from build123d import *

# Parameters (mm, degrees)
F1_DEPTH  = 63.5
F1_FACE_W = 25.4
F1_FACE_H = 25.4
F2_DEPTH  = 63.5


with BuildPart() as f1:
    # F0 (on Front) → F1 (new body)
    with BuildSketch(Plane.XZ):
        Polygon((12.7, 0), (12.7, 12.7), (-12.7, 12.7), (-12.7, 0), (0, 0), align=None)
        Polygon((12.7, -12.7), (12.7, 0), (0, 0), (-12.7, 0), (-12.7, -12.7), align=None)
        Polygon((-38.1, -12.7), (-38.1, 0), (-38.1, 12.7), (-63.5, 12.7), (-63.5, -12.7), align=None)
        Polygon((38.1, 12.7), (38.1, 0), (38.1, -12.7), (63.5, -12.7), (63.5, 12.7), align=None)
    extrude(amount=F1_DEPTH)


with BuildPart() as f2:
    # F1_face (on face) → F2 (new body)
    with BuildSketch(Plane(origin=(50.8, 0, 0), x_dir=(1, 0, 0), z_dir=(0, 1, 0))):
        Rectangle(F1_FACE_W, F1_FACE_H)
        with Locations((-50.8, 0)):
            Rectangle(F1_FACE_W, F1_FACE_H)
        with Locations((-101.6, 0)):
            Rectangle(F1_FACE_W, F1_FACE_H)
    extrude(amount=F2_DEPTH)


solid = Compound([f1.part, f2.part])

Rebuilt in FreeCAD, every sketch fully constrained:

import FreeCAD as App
import Part
import Sketcher
Q = App.Units.Quantity


def add_polygon(sketch, points):
    """Adds a closed chain of lines whose ends are joined by coincident constraints."""
    first, n = sketch.GeometryCount, len(points)
    for a, b in zip(points, points[1:] + points[:1]):
        sketch.addGeometry(Part.LineSegment(App.Vector(*a, 0), App.Vector(*b, 0)), False)
    for i in range(n):
        sketch.addConstraint(Sketcher.Constraint("Coincident", first + i, 2, first + (i + 1) % n, 1))

doc = App.newDocument("Part")
body = doc.addObject("PartDesign::Body", "Body")
body.AllowCompound = True

# Sketch on XZ plane
sketch1 = doc.addObject("Sketcher::SketchObject", "Sketch")
body.addObject(sketch1)
sketch1.AttachmentSupport = (doc.XZ_Plane, [""])
sketch1.MapMode = "FlatFace"
add_polygon(sketch1, [(13, 13), (-13, 13), (-13, -13), (13, -13)])  # lines 0-3
add_polygon(sketch1, [(-38, -13), (-38, 13), (-64, 13), (-64, -13)])  # lines 4-7
add_polygon(sketch1, [(38, 13), (38, -13), (64, -13), (64, 13)])  # lines 8-11
sketch1.addConstraint([
    Sketcher.Constraint("Horizontal", 0),
    Sketcher.Constraint("Vertical", 1),
    Sketcher.Constraint("Horizontal", 2),
    Sketcher.Constraint("Vertical", 3),
    Sketcher.Constraint("Vertical", 4),
    Sketcher.Constraint("Horizontal", 5),
    Sketcher.Constraint("Vertical", 6),
    Sketcher.Constraint("Horizontal", 7),
    Sketcher.Constraint("Vertical", 8),
    Sketcher.Constraint("Horizontal", 9),
    Sketcher.Constraint("Vertical", 10),
    Sketcher.Constraint("Horizontal", 11),
    Sketcher.Constraint("Symmetric", 0, 2, 2, 2, -1, 1),
    Sketcher.Constraint("Symmetric", 4, 2, 8, 2, -1, 1),
    Sketcher.Constraint("Symmetric", 6, 2, 10, 2, -1, 1),
    Sketcher.Constraint("Horizontal", 3, 2, 4, 2),
    Sketcher.Constraint("Horizontal", 2, 2, 6, 2),
    Sketcher.Constraint("Equal", 2, 5),
    Sketcher.Constraint("Equal", 11, 1),
    Sketcher.Constraint("DistanceX", 0, 2, 0, 1, Q("1 in")),
    Sketcher.Constraint("DistanceX", 4, 2, 0, 2, Q("1 in")),
])
pad1 = doc.addObject("PartDesign::Pad", "Pad")
body.addObject(pad1)
pad1.Profile = sketch1
pad1.Length = Q("2.5 in")
body2 = doc.addObject("PartDesign::Body", "Body001")
body2.AllowCompound = True

# Sketch on XZ plane
sketch2 = doc.addObject("Sketcher::SketchObject", "Sketch001")
body2.addObject(sketch2)
sketch2.AttachmentSupport = (doc.getObject("XZ_Plane001"), [""])
sketch2.MapMode = "FlatFace"
add_polygon(sketch2, [(38, -13), (38, 13), (64, 13), (64, -13)])  # lines 0-3
add_polygon(sketch2, [(-13, -13), (-13, 13), (13, 13), (13, -13)])  # lines 4-7
add_polygon(sketch2, [(-64, -13), (-64, 13), (-38, 13), (-38, -13)])  # lines 8-11
sketch2.addConstraint([
    Sketcher.Constraint("Vertical", 0),
    Sketcher.Constraint("Horizontal", 1),
    Sketcher.Constraint("Vertical", 2),
    Sketcher.Constraint("Horizontal", 3),
    Sketcher.Constraint("Vertical", 4),
    Sketcher.Constraint("Horizontal", 5),
    Sketcher.Constraint("Vertical", 6),
    Sketcher.Constraint("Horizontal", 7),
    Sketcher.Constraint("Vertical", 8),
    Sketcher.Constraint("Horizontal", 9),
    Sketcher.Constraint("Vertical", 10),
    Sketcher.Constraint("Horizontal", 11),
    Sketcher.Constraint("Symmetric", 4, 2, 6, 2, -1, 1),
    Sketcher.Constraint("Symmetric", 2, 2, 8, 2, -1, 1),
    Sketcher.Constraint("Symmetric", 0, 2, 10, 2, -1, 1),
    Sketcher.Constraint("Horizontal", 1, 2, 4, 2),
    Sketcher.Constraint("Horizontal", 3, 2, 6, 2),
    Sketcher.Constraint("Equal", 3, 5),
    Sketcher.Constraint("Equal", 11, 0),
    Sketcher.Constraint("DistanceX", 1, 1, 1, 2, Q("1 in")),
    Sketcher.Constraint("DistanceX", 4, 2, 0, 2, Q("2 in")),
])
pad2 = doc.addObject("PartDesign::Pad", "Pad001")
body2.addObject(pad2)
pad2.Profile = sketch2
pad2.Length = Q("2.5 in")
pad2.Reversed = True

doc.recompute()
